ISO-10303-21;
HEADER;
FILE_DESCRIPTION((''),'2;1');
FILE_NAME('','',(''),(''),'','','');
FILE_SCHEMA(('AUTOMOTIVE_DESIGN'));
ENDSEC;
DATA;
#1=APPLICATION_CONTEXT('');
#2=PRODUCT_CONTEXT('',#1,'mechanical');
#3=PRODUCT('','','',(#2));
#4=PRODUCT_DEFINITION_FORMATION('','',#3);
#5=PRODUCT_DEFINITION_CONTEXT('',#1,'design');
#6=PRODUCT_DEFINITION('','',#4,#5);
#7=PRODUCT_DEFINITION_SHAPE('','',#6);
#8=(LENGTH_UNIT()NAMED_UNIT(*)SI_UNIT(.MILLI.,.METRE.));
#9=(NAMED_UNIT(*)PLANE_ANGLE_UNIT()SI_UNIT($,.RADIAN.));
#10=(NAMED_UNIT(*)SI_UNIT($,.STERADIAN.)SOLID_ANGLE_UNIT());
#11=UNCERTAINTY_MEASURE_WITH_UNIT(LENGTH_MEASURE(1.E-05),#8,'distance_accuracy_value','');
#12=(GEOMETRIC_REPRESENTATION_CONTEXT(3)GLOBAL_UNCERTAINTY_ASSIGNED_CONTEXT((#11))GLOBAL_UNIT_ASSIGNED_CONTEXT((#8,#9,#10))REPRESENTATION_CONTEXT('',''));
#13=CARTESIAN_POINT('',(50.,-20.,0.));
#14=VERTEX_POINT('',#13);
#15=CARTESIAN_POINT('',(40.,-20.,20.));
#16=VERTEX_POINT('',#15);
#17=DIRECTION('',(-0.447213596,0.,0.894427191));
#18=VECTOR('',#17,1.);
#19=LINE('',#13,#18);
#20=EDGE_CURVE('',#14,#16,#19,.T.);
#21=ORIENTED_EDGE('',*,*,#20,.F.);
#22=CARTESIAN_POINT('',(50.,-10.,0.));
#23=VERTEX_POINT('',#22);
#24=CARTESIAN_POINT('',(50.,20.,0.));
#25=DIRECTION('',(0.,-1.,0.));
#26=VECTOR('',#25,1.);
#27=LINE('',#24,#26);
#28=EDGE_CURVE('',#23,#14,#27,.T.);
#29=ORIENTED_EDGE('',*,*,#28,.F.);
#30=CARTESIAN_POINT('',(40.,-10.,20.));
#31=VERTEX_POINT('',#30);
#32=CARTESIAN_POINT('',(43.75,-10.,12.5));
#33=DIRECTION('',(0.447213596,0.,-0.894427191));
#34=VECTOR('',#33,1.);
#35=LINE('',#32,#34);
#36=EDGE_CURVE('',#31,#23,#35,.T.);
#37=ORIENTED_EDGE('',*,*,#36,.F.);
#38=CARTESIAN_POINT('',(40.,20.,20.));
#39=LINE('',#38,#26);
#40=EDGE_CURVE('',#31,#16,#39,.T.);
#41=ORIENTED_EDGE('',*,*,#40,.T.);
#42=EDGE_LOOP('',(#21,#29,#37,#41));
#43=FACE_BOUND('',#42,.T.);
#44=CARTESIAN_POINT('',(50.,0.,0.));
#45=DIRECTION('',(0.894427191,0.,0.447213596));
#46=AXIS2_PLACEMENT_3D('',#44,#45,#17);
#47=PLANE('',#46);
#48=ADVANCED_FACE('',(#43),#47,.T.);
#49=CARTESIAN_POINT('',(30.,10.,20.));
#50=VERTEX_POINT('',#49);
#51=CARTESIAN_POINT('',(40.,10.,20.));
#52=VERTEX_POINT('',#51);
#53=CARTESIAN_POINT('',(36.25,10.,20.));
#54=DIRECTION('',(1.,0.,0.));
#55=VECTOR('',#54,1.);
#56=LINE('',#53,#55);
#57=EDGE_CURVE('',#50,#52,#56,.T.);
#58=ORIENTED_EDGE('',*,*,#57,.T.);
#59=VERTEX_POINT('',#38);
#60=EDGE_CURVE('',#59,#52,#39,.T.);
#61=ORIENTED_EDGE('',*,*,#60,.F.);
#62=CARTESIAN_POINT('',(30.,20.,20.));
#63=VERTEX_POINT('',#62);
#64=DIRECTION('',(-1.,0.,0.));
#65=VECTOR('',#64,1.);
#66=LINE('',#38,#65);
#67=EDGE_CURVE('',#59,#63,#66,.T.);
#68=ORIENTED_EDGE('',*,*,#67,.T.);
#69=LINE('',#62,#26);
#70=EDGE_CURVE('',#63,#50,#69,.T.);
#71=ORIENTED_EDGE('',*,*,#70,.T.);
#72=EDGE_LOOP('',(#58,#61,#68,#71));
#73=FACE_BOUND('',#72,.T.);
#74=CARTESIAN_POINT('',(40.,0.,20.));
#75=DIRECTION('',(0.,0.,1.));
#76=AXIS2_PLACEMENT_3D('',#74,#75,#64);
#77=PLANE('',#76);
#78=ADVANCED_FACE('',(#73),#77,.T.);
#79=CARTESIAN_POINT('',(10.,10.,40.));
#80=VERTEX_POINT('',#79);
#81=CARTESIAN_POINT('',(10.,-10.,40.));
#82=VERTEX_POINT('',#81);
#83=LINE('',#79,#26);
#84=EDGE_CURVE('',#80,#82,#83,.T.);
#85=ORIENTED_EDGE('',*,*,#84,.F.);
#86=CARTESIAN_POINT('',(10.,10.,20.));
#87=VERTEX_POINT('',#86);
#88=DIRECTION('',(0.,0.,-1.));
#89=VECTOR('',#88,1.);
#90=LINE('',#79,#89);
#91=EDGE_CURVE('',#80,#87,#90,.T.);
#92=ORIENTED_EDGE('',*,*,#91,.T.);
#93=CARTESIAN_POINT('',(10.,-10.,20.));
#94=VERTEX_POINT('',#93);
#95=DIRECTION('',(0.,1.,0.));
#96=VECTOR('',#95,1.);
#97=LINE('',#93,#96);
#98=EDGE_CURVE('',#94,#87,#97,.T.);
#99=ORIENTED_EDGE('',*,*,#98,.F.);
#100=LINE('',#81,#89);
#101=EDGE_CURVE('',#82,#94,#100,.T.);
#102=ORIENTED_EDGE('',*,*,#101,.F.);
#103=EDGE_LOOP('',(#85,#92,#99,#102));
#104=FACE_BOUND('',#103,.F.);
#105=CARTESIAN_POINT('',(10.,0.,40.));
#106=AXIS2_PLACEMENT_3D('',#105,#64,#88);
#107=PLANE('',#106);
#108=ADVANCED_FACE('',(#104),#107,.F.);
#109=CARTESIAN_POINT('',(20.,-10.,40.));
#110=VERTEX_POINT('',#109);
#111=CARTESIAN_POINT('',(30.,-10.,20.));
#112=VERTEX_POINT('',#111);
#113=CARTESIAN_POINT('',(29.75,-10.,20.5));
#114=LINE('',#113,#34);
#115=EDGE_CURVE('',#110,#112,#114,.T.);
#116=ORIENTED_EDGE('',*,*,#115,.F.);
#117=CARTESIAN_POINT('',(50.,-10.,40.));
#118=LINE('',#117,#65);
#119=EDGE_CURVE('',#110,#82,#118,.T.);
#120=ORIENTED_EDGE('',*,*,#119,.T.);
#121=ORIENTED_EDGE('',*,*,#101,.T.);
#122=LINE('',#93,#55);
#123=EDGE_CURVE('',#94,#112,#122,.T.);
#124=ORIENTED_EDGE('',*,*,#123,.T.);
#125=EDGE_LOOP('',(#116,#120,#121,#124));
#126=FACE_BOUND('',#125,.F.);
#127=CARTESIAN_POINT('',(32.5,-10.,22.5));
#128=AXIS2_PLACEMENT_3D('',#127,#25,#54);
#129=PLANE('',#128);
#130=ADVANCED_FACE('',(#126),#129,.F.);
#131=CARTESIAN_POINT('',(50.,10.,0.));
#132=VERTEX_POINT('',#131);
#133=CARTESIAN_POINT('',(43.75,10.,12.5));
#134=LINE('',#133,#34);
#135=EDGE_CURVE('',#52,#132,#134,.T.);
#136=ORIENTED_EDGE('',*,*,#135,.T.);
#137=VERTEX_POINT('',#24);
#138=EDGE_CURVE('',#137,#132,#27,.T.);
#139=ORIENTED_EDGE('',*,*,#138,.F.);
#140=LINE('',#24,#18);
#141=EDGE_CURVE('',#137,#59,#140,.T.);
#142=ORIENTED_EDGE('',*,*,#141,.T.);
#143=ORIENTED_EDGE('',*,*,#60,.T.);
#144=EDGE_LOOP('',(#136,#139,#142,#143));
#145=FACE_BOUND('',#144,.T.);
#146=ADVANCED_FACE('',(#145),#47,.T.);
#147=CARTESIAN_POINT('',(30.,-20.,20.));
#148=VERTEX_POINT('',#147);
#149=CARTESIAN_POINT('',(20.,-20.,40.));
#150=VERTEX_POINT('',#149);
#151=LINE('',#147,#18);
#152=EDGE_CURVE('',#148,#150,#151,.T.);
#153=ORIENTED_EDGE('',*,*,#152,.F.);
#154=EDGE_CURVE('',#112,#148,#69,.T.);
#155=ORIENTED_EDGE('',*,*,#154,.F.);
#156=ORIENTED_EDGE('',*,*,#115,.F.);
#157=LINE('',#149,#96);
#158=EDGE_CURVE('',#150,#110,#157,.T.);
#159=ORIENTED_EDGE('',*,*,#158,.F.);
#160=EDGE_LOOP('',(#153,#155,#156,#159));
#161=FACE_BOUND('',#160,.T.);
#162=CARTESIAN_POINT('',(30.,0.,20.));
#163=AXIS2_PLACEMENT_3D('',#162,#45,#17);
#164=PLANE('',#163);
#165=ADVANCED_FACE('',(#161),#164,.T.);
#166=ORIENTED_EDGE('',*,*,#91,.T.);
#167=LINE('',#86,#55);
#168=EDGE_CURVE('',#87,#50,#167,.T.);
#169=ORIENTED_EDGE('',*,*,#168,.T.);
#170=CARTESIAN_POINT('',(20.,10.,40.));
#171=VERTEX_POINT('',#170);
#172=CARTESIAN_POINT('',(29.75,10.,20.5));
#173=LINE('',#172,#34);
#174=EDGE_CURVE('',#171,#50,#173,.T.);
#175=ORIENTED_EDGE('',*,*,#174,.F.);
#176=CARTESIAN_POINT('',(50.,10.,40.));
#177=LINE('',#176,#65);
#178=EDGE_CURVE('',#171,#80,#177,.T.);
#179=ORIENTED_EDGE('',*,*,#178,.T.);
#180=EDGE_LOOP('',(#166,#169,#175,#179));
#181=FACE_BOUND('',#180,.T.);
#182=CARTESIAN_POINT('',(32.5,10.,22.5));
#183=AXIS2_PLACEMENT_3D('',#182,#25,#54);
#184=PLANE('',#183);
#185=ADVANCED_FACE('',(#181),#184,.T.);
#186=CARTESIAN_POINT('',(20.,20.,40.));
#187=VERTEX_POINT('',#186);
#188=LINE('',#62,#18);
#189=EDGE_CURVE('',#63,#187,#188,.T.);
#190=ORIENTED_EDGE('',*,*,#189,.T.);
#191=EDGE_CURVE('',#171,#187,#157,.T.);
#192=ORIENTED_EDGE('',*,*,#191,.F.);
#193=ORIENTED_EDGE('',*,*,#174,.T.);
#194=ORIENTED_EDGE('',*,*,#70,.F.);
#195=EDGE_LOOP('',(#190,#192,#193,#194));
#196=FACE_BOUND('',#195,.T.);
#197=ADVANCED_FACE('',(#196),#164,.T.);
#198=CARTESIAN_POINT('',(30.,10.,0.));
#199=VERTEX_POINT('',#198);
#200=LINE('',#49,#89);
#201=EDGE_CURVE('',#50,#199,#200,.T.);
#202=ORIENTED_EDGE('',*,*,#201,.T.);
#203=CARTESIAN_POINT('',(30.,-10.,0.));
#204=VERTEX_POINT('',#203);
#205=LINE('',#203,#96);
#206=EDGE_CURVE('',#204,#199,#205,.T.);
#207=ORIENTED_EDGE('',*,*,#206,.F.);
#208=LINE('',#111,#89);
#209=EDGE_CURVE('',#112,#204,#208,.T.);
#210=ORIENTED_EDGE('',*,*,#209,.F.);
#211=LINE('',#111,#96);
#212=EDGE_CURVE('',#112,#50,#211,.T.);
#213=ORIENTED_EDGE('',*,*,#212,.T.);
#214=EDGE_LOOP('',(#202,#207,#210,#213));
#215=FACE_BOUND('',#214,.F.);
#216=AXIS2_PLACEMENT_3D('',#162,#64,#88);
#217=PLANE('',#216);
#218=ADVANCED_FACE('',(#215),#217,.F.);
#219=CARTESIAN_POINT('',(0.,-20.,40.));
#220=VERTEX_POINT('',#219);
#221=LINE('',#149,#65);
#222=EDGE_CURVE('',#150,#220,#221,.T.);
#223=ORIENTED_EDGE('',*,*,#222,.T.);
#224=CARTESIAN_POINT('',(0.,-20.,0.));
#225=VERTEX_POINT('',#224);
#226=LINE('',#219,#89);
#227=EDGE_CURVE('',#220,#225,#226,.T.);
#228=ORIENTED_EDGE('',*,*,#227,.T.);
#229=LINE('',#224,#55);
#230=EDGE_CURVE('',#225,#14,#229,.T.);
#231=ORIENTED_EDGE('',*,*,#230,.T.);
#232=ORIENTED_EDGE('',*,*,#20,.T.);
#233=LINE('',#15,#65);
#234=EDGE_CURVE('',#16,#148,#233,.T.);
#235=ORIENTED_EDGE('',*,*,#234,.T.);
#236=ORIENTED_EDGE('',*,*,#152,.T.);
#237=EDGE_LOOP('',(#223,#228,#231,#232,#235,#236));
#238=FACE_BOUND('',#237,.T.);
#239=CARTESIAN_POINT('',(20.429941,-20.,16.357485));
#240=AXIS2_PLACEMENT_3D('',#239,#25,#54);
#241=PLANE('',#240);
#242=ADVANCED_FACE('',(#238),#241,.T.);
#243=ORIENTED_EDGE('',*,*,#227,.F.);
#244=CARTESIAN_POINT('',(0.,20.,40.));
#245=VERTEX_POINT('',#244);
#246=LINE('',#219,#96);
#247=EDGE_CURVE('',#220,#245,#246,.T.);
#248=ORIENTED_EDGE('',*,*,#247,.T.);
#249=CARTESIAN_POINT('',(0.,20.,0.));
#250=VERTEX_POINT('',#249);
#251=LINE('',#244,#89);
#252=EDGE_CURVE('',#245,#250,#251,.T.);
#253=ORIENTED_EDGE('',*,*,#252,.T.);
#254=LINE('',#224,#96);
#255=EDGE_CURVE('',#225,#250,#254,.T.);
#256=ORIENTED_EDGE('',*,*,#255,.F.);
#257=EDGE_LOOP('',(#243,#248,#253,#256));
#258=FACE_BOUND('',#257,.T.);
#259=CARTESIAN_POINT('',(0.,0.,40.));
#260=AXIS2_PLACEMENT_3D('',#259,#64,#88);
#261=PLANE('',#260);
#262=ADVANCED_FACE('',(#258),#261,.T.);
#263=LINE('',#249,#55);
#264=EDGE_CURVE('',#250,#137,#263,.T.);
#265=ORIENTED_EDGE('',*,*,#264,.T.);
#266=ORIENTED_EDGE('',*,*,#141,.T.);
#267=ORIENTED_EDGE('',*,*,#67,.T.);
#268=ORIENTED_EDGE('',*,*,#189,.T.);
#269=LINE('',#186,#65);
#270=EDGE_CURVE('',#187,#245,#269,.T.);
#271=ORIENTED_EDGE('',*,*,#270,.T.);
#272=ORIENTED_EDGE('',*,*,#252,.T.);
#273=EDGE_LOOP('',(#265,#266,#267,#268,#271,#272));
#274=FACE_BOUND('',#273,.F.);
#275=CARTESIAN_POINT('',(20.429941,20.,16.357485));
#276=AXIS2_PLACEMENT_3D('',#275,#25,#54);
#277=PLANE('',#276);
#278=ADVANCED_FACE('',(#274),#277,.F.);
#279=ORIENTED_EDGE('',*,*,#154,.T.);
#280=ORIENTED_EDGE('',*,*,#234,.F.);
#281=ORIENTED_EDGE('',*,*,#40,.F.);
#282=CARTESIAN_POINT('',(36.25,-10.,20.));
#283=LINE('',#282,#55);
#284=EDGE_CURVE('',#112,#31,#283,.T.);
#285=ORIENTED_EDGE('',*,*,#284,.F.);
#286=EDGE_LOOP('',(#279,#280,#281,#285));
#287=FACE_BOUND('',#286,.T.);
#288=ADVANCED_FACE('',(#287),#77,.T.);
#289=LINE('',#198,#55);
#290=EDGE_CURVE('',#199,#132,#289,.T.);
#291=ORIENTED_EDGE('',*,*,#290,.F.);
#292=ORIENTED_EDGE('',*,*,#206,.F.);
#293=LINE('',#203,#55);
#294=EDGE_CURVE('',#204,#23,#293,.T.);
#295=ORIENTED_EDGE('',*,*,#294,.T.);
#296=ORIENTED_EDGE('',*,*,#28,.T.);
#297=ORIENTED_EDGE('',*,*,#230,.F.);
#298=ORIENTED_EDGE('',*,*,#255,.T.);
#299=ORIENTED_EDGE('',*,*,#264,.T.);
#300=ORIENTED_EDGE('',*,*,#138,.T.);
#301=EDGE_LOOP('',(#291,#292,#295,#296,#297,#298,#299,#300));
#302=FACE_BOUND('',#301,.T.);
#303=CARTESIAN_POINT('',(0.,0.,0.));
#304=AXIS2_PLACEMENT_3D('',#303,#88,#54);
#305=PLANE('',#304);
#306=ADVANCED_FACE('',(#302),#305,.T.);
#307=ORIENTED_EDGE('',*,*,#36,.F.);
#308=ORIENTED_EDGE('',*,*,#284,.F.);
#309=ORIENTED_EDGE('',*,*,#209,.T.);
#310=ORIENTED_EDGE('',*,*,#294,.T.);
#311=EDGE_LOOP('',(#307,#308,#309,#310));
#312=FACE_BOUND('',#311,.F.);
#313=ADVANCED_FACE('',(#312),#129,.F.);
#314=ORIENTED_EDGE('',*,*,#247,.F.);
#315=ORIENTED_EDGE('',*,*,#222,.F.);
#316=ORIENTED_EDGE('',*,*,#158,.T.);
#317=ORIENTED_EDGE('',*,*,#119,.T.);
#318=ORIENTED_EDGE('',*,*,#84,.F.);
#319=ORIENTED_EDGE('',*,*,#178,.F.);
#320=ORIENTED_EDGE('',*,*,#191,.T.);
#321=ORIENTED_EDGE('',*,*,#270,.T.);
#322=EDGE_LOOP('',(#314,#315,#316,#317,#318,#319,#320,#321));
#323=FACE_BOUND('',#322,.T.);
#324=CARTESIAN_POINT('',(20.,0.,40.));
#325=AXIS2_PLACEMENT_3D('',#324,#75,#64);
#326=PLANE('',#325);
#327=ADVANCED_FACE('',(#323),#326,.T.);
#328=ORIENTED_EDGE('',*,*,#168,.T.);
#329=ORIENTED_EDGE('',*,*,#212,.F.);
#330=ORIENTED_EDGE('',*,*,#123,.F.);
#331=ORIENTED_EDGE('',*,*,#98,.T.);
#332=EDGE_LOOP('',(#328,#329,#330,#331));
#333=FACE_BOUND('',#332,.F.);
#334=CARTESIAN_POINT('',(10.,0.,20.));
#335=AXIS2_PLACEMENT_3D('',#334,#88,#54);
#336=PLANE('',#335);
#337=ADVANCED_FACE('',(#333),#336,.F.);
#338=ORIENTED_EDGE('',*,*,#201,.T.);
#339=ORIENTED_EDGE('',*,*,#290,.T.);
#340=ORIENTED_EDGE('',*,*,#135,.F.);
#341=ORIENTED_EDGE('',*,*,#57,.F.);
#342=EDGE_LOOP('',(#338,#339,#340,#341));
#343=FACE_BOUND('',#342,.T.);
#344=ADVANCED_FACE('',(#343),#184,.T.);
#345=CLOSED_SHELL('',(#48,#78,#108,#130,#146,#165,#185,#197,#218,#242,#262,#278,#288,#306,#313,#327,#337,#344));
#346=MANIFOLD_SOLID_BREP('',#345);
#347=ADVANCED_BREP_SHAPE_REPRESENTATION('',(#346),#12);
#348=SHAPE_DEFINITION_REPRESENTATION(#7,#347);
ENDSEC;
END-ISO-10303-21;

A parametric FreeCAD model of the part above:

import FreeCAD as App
import Part
import Sketcher

V = App.Vector
Q = App.Units.Quantity

doc = App.newDocument("Part")
body = doc.addObject("PartDesign::Body", "Body")

# Sketch on XZ plane
sketch1 = doc.addObject("Sketcher::SketchObject", "Sketch")
body.addObject(sketch1)
sketch1.AttachmentSupport = (doc.XZ_Plane, [""])
sketch1.MapMode = "FlatFace"
sketch1.addGeometry([
    Part.LineSegment(V(0, 0, 0), V(50, 0, 0)),  # 0
    Part.LineSegment(V(50, 0, 0), V(40, 20, 0)),  # 1
    Part.LineSegment(V(40, 20, 0), V(30, 20, 0)),  # 2
    Part.LineSegment(V(30, 20, 0), V(20, 40, 0)),  # 3
    Part.LineSegment(V(20, 40, 0), V(0, 40, 0)),  # 4
    Part.LineSegment(V(0, 40, 0), V(0, 0, 0)),  # 5
], False)
sketch1.addConstraint([
    Sketcher.Constraint("Coincident", 0, 2, 1, 1),
    Sketcher.Constraint("Coincident", 1, 2, 2, 1),
    Sketcher.Constraint("Coincident", 2, 2, 3, 1),
    Sketcher.Constraint("Coincident", 3, 2, 4, 1),
    Sketcher.Constraint("Coincident", 4, 2, 5, 1),
    Sketcher.Constraint("Coincident", 5, 2, 0, 1),
    Sketcher.Constraint("Horizontal", 0),
    Sketcher.Constraint("Horizontal", 2),
    Sketcher.Constraint("Horizontal", 4),
    Sketcher.Constraint("Vertical", 5),
    Sketcher.Constraint("Coincident", 5, 2, -1, 1),
    Sketcher.Constraint("Parallel", 1, 3),
    Sketcher.Constraint("Equal", 1, 3),
    Sketcher.Constraint("DistanceX", 0, 1, 0, 2, Q("50 mm")),
    Sketcher.Constraint("DistanceX", 2, 2, 2, 1, Q("10 mm")),
    Sketcher.Constraint("DistanceX", 4, 2, 4, 1, Q("20 mm")),
    Sketcher.Constraint("DistanceY", 5, 2, 5, 1, Q("40 mm")),
])
pad1 = doc.addObject("PartDesign::Pad", "Pad")
body.addObject(pad1)
pad1.Profile = sketch1
pad1.Length = 40
pad1.Midplane = True

# Sketch on XZ plane
sketch2 = doc.addObject("Sketcher::SketchObject", "Sketch001")
body.addObject(sketch2)
sketch2.AttachmentSupport = (doc.XZ_Plane, [""])
sketch2.MapMode = "FlatFace"
sketch2.addGeometry([
    Part.LineSegment(V(30, 0, 0), V(50, 0, 0)),  # 0
    Part.LineSegment(V(50, 0, 0), V(50, 40, 0)),  # 1
    Part.LineSegment(V(50, 40, 0), V(10, 40, 0)),  # 2
    Part.LineSegment(V(10, 40, 0), V(10, 20, 0)),  # 3
    Part.LineSegment(V(10, 20, 0), V(30, 20, 0)),  # 4
    Part.LineSegment(V(30, 20, 0), V(30, 0, 0)),  # 5
], False)
sketch2.addConstraint([
    Sketcher.Constraint("Coincident", 0, 2, 1, 1),
    Sketcher.Constraint("Coincident", 1, 2, 2, 1),
    Sketcher.Constraint("Coincident", 2, 2, 3, 1),
    Sketcher.Constraint("Coincident", 3, 2, 4, 1),
    Sketcher.Constraint("Coincident", 4, 2, 5, 1),
    Sketcher.Constraint("Coincident", 5, 2, 0, 1),
    Sketcher.Constraint("Horizontal", 0),
    Sketcher.Constraint("Vertical", 1),
    Sketcher.Constraint("Horizontal", 2),
    Sketcher.Constraint("Vertical", 3),
    Sketcher.Constraint("Horizontal", 4),
    Sketcher.Constraint("Vertical", 5),
    Sketcher.Constraint("PointOnObject", 0, 2, -1),
    Sketcher.Constraint("Equal", 0, 4),
    Sketcher.Constraint("Equal", 2, 1),
    Sketcher.Constraint("Equal", 4, 3),
    Sketcher.Constraint("DistanceX", 0, 1, 0, 2, Q("20 mm")),
    Sketcher.Constraint("DistanceX", -1, 1, 0, 2, Q("50 mm")),
])
pocket1 = doc.addObject("PartDesign::Pocket", "Pocket")
body.addObject(pocket1)
pocket1.Profile = sketch2
pocket1.Length = 20
pocket1.Midplane = True

doc.recompute()
